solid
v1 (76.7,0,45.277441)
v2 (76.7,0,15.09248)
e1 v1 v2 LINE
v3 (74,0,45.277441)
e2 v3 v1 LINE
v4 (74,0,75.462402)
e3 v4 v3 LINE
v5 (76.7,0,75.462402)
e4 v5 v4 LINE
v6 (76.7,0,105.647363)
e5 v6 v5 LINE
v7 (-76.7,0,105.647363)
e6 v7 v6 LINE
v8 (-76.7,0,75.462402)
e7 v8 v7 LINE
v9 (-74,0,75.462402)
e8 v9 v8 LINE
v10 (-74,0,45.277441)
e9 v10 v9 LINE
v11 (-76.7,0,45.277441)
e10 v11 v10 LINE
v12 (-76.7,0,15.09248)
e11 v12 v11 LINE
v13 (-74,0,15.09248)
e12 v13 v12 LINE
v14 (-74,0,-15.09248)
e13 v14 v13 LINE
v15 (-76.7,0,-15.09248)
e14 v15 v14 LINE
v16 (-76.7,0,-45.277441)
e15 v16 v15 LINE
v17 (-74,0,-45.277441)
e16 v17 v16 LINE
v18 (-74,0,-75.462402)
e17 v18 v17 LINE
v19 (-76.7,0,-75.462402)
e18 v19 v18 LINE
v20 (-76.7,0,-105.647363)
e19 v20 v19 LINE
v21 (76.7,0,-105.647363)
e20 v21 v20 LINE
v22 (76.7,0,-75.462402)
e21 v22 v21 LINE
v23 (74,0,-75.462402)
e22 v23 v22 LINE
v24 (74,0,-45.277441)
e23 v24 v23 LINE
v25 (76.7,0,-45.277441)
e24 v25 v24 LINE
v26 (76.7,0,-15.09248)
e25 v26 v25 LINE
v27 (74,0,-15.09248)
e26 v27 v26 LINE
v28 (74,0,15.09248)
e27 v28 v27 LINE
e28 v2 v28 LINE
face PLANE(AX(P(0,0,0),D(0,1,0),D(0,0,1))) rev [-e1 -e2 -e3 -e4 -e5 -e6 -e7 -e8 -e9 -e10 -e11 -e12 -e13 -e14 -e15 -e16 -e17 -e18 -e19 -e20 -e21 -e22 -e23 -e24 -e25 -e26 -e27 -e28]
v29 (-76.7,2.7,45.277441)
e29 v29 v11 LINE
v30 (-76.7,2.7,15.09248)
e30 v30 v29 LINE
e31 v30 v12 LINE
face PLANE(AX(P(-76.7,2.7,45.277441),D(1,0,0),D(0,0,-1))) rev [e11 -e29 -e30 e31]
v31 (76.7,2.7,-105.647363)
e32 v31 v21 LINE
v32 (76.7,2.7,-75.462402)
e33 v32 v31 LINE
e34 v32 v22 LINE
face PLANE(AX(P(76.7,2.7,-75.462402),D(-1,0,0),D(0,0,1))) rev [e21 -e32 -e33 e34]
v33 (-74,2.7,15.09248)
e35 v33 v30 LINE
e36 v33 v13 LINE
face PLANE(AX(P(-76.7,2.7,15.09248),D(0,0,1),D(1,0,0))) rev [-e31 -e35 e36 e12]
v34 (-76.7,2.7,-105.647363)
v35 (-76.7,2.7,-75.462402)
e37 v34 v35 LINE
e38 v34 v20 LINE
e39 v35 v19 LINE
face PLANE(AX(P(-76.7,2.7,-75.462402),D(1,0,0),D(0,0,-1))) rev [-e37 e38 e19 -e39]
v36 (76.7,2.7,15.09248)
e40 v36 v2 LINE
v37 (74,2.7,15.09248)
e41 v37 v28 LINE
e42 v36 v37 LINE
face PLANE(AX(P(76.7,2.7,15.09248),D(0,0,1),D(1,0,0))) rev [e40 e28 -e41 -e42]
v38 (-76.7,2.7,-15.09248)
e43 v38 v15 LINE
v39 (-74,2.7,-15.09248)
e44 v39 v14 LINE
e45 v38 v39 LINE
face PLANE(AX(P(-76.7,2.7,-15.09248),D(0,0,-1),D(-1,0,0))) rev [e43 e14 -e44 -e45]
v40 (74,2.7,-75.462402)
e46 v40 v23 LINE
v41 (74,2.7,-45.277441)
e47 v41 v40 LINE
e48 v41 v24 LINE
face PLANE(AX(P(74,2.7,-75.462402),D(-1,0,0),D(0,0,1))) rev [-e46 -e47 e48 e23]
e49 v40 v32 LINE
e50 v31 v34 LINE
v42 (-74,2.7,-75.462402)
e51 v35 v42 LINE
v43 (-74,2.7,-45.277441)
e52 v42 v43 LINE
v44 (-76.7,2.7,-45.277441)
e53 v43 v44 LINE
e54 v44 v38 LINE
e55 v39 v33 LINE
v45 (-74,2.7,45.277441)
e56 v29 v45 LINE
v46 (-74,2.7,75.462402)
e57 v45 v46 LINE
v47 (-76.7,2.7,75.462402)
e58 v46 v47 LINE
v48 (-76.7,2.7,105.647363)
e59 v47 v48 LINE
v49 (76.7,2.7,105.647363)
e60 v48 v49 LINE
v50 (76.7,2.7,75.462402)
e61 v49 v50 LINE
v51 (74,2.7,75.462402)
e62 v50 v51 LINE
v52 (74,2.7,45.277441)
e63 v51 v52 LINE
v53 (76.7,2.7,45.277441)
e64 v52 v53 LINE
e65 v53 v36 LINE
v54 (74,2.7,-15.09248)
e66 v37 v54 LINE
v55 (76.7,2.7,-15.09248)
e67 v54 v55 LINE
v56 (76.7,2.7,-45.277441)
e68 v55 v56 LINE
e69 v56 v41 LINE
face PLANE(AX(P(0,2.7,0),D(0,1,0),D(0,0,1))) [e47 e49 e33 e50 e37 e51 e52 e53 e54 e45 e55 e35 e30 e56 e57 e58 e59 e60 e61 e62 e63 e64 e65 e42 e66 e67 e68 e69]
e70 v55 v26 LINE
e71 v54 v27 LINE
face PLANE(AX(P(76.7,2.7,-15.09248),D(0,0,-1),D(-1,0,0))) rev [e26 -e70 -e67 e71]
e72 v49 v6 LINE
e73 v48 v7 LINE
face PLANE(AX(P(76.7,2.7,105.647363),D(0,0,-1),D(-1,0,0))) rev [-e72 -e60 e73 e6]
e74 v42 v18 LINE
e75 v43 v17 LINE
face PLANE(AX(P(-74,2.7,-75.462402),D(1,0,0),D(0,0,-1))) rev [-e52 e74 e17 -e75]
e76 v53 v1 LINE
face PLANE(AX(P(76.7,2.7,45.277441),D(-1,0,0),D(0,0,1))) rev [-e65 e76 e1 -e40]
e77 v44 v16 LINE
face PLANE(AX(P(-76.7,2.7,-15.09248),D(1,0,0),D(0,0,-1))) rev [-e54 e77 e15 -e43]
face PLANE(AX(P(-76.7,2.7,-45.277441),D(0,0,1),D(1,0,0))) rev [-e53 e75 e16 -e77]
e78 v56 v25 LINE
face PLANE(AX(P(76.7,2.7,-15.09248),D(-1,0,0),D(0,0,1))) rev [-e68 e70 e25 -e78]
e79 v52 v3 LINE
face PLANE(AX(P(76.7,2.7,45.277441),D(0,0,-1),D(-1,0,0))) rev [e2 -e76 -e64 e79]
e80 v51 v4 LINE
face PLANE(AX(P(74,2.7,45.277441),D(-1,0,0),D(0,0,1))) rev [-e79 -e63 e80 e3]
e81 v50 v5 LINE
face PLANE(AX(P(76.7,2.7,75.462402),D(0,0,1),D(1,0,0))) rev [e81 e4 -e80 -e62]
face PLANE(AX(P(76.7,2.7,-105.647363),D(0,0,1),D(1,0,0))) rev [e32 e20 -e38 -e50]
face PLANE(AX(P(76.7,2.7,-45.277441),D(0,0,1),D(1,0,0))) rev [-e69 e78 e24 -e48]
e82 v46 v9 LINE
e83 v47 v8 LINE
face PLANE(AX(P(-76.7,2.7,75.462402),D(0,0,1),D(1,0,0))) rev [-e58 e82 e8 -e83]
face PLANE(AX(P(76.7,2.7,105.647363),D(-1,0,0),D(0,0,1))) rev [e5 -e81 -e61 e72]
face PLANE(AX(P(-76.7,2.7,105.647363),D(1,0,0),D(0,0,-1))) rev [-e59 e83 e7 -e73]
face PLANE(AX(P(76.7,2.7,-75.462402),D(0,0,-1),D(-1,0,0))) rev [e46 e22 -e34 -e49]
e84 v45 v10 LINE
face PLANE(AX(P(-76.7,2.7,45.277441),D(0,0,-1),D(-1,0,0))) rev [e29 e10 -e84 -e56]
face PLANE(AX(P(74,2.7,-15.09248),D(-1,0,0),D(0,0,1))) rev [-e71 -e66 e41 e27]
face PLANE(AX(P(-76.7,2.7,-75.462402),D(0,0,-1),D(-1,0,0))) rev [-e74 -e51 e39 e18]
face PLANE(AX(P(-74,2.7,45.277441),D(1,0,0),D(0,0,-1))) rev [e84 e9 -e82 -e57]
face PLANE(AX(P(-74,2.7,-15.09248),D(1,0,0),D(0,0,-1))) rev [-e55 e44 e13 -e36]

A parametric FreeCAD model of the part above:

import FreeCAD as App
import Part
import Sketcher

V = App.Vector


def add_polygon(sketch, points):
    """Adds a closed chain of lines whose ends are joined by coincident constraints."""
    first, n = sketch.GeometryCount, len(points)
    for a, b in zip(points, points[1:] + points[:1]):
        sketch.addGeometry(Part.LineSegment(App.Vector(*a, 0), App.Vector(*b, 0)), False)
    for i in range(n):
        sketch.addConstraint(Sketcher.Constraint("Coincident", first + i, 2, first + (i + 1) % n, 1))

doc = App.newDocument("Part")
params = doc.addObject("Spreadsheet::Sheet", "Params")
for row, (alias, value) in enumerate([
    ("sketch1_width", "153.4 mm"),
    ("sketch1_width2", "2.7 mm"),
    ("pad1_length", "2.7 mm"),
], start=1):
    params.set(f"A{row}", alias)
    params.set(f"B{row}", "=" + value)
    params.setAlias(f"B{row}", alias)

body = doc.addObject("PartDesign::Body", "Body")

# Sketch on XZ plane
sketch1 = doc.addObject("Sketcher::SketchObject", "Sketch")
body.addObject(sketch1)
sketch1.AttachmentSupport = (doc.XZ_Plane, [""])
sketch1.MapMode = "FlatFace"
add_polygon(sketch1, [(-76.7, 105.6), (76.7, 105.6), (76.7, 75.5), (74, 75.5), (74, 45.3), (76.7, 45.3), (76.7, 15.1), (74, 15.1), (74, -15.1), (76.7, -15.1), (76.7, -45.3), (74, -45.3), (74, -75.5), (76.7, -75.5), (76.7, -105.6), (-76.7, -105.6), (-76.7, -75.5), (-74, -75.5), (-74, -45.3), (-76.7, -45.3), (-76.7, -15.1), (-74, -15.1), (-74, 15.1), (-76.7, 15.1), (-76.7, 45.3), (-74, 45.3), (-74, 75.5), (-76.7, 75.5)])  # lines 0-27
sketch1.addConstraint(Sketcher.Constraint("Horizontal", 0))
sketch1.addConstraint(Sketcher.Constraint("Vertical", 1))
sketch1.addConstraint(Sketcher.Constraint("Horizontal", 2))
sketch1.addConstraint(Sketcher.Constraint("Vertical", 3))
sketch1.addConstraint(Sketcher.Constraint("Horizontal", 4))
sketch1.addConstraint(Sketcher.Constraint("Vertical", 5))
sketch1.addConstraint(Sketcher.Constraint("Horizontal", 6))
sketch1.addConstraint(Sketcher.Constraint("Vertical", 7))
sketch1.addConstraint(Sketcher.Constraint("Horizontal", 8))
sketch1.addConstraint(Sketcher.Constraint("Vertical", 9))
sketch1.addConstraint(Sketcher.Constraint("Horizontal", 10))
sketch1.addConstraint(Sketcher.Constraint("Vertical", 11))
sketch1.addConstraint(Sketcher.Constraint("Horizontal", 12))
sketch1.addConstraint(Sketcher.Constraint("Vertical", 13))
sketch1.addConstraint(Sketcher.Constraint("Horizontal", 14))
sketch1.addConstraint(Sketcher.Constraint("Vertical", 15))
sketch1.addConstraint(Sketcher.Constraint("Horizontal", 16))
sketch1.addConstraint(Sketcher.Constraint("Vertical", 17))
sketch1.addConstraint(Sketcher.Constraint("Horizontal", 18))
sketch1.addConstraint(Sketcher.Constraint("Vertical", 19))
sketch1.addConstraint(Sketcher.Constraint("Horizontal", 20))
sketch1.addConstraint(Sketcher.Constraint("Vertical", 21))
sketch1.addConstraint(Sketcher.Constraint("Horizontal", 22))
sketch1.addConstraint(Sketcher.Constraint("Vertical", 23))
sketch1.addConstraint(Sketcher.Constraint("Horizontal", 24))
sketch1.addConstraint(Sketcher.Constraint("Vertical", 25))
sketch1.addConstraint(Sketcher.Constraint("Horizontal", 26))
sketch1.addConstraint(Sketcher.Constraint("Vertical", 27))
sketch1.addConstraint(Sketcher.Constraint("Symmetric", 0, 2, 14, 2, -1, 1))
sketch1.addConstraint(Sketcher.Constraint("Symmetric", 2, 2, 16, 2, -1, 1))
sketch1.addConstraint(Sketcher.Constraint("Symmetric", 4, 2, 18, 2, -1, 1))
sketch1.addConstraint(Sketcher.Constraint("Symmetric", 6, 2, 20, 2, -1, 1))
sketch1.addConstraint(Sketcher.Constraint("Symmetric", 8, 2, 22, 2, -1, 1))
sketch1.addConstraint(Sketcher.Constraint("Symmetric", 10, 2, 24, 2, -1, 1))
sketch1.addConstraint(Sketcher.Constraint("Symmetric", 12, 2, 26, 2, -1, 1))
sketch1.addConstraint(Sketcher.Constraint("Symmetric", 12, 2, 15, 2, -2))
sketch1.addConstraint(Sketcher.Constraint("Symmetric", 10, 2, 17, 2, -2))
sketch1.addConstraint(Sketcher.Constraint("Symmetric", 8, 2, 19, 2, -2))
sketch1.addConstraint(Sketcher.Constraint("Vertical", 1, 2, 4, 2))
sketch1.addConstraint(Sketcher.Constraint("Vertical", 3, 2, 6, 2))
sketch1.addConstraint(Sketcher.Constraint("Equal", 1, 3))
sketch1.addConstraint(Sketcher.Constraint("Equal", 3, 5))
sketch1.addConstraint(Sketcher.Constraint("Equal", 5, 7))
sketch1.addConstraint(Sketcher.Constraint("DistanceX", 0, 1, 0, 2, 153.4))
sketch1.addConstraint(Sketcher.Constraint("DistanceX", 2, 2, 2, 1, 2.7))
sketch1.addConstraint(Sketcher.Constraint("DistanceY", 1, 2, 1, 1, 30.184961))
sketch1.setExpression("Constraints[71]", "Params.sketch1_width")
sketch1.setExpression("Constraints[72]", "Params.sketch1_width2")
pad1 = doc.addObject("PartDesign::Pad", "Pad")
body.addObject(pad1)
pad1.Profile = sketch1
pad1.setExpression("Length", "Params.pad1_length")
pad1.Reversed = True

doc.recompute()
